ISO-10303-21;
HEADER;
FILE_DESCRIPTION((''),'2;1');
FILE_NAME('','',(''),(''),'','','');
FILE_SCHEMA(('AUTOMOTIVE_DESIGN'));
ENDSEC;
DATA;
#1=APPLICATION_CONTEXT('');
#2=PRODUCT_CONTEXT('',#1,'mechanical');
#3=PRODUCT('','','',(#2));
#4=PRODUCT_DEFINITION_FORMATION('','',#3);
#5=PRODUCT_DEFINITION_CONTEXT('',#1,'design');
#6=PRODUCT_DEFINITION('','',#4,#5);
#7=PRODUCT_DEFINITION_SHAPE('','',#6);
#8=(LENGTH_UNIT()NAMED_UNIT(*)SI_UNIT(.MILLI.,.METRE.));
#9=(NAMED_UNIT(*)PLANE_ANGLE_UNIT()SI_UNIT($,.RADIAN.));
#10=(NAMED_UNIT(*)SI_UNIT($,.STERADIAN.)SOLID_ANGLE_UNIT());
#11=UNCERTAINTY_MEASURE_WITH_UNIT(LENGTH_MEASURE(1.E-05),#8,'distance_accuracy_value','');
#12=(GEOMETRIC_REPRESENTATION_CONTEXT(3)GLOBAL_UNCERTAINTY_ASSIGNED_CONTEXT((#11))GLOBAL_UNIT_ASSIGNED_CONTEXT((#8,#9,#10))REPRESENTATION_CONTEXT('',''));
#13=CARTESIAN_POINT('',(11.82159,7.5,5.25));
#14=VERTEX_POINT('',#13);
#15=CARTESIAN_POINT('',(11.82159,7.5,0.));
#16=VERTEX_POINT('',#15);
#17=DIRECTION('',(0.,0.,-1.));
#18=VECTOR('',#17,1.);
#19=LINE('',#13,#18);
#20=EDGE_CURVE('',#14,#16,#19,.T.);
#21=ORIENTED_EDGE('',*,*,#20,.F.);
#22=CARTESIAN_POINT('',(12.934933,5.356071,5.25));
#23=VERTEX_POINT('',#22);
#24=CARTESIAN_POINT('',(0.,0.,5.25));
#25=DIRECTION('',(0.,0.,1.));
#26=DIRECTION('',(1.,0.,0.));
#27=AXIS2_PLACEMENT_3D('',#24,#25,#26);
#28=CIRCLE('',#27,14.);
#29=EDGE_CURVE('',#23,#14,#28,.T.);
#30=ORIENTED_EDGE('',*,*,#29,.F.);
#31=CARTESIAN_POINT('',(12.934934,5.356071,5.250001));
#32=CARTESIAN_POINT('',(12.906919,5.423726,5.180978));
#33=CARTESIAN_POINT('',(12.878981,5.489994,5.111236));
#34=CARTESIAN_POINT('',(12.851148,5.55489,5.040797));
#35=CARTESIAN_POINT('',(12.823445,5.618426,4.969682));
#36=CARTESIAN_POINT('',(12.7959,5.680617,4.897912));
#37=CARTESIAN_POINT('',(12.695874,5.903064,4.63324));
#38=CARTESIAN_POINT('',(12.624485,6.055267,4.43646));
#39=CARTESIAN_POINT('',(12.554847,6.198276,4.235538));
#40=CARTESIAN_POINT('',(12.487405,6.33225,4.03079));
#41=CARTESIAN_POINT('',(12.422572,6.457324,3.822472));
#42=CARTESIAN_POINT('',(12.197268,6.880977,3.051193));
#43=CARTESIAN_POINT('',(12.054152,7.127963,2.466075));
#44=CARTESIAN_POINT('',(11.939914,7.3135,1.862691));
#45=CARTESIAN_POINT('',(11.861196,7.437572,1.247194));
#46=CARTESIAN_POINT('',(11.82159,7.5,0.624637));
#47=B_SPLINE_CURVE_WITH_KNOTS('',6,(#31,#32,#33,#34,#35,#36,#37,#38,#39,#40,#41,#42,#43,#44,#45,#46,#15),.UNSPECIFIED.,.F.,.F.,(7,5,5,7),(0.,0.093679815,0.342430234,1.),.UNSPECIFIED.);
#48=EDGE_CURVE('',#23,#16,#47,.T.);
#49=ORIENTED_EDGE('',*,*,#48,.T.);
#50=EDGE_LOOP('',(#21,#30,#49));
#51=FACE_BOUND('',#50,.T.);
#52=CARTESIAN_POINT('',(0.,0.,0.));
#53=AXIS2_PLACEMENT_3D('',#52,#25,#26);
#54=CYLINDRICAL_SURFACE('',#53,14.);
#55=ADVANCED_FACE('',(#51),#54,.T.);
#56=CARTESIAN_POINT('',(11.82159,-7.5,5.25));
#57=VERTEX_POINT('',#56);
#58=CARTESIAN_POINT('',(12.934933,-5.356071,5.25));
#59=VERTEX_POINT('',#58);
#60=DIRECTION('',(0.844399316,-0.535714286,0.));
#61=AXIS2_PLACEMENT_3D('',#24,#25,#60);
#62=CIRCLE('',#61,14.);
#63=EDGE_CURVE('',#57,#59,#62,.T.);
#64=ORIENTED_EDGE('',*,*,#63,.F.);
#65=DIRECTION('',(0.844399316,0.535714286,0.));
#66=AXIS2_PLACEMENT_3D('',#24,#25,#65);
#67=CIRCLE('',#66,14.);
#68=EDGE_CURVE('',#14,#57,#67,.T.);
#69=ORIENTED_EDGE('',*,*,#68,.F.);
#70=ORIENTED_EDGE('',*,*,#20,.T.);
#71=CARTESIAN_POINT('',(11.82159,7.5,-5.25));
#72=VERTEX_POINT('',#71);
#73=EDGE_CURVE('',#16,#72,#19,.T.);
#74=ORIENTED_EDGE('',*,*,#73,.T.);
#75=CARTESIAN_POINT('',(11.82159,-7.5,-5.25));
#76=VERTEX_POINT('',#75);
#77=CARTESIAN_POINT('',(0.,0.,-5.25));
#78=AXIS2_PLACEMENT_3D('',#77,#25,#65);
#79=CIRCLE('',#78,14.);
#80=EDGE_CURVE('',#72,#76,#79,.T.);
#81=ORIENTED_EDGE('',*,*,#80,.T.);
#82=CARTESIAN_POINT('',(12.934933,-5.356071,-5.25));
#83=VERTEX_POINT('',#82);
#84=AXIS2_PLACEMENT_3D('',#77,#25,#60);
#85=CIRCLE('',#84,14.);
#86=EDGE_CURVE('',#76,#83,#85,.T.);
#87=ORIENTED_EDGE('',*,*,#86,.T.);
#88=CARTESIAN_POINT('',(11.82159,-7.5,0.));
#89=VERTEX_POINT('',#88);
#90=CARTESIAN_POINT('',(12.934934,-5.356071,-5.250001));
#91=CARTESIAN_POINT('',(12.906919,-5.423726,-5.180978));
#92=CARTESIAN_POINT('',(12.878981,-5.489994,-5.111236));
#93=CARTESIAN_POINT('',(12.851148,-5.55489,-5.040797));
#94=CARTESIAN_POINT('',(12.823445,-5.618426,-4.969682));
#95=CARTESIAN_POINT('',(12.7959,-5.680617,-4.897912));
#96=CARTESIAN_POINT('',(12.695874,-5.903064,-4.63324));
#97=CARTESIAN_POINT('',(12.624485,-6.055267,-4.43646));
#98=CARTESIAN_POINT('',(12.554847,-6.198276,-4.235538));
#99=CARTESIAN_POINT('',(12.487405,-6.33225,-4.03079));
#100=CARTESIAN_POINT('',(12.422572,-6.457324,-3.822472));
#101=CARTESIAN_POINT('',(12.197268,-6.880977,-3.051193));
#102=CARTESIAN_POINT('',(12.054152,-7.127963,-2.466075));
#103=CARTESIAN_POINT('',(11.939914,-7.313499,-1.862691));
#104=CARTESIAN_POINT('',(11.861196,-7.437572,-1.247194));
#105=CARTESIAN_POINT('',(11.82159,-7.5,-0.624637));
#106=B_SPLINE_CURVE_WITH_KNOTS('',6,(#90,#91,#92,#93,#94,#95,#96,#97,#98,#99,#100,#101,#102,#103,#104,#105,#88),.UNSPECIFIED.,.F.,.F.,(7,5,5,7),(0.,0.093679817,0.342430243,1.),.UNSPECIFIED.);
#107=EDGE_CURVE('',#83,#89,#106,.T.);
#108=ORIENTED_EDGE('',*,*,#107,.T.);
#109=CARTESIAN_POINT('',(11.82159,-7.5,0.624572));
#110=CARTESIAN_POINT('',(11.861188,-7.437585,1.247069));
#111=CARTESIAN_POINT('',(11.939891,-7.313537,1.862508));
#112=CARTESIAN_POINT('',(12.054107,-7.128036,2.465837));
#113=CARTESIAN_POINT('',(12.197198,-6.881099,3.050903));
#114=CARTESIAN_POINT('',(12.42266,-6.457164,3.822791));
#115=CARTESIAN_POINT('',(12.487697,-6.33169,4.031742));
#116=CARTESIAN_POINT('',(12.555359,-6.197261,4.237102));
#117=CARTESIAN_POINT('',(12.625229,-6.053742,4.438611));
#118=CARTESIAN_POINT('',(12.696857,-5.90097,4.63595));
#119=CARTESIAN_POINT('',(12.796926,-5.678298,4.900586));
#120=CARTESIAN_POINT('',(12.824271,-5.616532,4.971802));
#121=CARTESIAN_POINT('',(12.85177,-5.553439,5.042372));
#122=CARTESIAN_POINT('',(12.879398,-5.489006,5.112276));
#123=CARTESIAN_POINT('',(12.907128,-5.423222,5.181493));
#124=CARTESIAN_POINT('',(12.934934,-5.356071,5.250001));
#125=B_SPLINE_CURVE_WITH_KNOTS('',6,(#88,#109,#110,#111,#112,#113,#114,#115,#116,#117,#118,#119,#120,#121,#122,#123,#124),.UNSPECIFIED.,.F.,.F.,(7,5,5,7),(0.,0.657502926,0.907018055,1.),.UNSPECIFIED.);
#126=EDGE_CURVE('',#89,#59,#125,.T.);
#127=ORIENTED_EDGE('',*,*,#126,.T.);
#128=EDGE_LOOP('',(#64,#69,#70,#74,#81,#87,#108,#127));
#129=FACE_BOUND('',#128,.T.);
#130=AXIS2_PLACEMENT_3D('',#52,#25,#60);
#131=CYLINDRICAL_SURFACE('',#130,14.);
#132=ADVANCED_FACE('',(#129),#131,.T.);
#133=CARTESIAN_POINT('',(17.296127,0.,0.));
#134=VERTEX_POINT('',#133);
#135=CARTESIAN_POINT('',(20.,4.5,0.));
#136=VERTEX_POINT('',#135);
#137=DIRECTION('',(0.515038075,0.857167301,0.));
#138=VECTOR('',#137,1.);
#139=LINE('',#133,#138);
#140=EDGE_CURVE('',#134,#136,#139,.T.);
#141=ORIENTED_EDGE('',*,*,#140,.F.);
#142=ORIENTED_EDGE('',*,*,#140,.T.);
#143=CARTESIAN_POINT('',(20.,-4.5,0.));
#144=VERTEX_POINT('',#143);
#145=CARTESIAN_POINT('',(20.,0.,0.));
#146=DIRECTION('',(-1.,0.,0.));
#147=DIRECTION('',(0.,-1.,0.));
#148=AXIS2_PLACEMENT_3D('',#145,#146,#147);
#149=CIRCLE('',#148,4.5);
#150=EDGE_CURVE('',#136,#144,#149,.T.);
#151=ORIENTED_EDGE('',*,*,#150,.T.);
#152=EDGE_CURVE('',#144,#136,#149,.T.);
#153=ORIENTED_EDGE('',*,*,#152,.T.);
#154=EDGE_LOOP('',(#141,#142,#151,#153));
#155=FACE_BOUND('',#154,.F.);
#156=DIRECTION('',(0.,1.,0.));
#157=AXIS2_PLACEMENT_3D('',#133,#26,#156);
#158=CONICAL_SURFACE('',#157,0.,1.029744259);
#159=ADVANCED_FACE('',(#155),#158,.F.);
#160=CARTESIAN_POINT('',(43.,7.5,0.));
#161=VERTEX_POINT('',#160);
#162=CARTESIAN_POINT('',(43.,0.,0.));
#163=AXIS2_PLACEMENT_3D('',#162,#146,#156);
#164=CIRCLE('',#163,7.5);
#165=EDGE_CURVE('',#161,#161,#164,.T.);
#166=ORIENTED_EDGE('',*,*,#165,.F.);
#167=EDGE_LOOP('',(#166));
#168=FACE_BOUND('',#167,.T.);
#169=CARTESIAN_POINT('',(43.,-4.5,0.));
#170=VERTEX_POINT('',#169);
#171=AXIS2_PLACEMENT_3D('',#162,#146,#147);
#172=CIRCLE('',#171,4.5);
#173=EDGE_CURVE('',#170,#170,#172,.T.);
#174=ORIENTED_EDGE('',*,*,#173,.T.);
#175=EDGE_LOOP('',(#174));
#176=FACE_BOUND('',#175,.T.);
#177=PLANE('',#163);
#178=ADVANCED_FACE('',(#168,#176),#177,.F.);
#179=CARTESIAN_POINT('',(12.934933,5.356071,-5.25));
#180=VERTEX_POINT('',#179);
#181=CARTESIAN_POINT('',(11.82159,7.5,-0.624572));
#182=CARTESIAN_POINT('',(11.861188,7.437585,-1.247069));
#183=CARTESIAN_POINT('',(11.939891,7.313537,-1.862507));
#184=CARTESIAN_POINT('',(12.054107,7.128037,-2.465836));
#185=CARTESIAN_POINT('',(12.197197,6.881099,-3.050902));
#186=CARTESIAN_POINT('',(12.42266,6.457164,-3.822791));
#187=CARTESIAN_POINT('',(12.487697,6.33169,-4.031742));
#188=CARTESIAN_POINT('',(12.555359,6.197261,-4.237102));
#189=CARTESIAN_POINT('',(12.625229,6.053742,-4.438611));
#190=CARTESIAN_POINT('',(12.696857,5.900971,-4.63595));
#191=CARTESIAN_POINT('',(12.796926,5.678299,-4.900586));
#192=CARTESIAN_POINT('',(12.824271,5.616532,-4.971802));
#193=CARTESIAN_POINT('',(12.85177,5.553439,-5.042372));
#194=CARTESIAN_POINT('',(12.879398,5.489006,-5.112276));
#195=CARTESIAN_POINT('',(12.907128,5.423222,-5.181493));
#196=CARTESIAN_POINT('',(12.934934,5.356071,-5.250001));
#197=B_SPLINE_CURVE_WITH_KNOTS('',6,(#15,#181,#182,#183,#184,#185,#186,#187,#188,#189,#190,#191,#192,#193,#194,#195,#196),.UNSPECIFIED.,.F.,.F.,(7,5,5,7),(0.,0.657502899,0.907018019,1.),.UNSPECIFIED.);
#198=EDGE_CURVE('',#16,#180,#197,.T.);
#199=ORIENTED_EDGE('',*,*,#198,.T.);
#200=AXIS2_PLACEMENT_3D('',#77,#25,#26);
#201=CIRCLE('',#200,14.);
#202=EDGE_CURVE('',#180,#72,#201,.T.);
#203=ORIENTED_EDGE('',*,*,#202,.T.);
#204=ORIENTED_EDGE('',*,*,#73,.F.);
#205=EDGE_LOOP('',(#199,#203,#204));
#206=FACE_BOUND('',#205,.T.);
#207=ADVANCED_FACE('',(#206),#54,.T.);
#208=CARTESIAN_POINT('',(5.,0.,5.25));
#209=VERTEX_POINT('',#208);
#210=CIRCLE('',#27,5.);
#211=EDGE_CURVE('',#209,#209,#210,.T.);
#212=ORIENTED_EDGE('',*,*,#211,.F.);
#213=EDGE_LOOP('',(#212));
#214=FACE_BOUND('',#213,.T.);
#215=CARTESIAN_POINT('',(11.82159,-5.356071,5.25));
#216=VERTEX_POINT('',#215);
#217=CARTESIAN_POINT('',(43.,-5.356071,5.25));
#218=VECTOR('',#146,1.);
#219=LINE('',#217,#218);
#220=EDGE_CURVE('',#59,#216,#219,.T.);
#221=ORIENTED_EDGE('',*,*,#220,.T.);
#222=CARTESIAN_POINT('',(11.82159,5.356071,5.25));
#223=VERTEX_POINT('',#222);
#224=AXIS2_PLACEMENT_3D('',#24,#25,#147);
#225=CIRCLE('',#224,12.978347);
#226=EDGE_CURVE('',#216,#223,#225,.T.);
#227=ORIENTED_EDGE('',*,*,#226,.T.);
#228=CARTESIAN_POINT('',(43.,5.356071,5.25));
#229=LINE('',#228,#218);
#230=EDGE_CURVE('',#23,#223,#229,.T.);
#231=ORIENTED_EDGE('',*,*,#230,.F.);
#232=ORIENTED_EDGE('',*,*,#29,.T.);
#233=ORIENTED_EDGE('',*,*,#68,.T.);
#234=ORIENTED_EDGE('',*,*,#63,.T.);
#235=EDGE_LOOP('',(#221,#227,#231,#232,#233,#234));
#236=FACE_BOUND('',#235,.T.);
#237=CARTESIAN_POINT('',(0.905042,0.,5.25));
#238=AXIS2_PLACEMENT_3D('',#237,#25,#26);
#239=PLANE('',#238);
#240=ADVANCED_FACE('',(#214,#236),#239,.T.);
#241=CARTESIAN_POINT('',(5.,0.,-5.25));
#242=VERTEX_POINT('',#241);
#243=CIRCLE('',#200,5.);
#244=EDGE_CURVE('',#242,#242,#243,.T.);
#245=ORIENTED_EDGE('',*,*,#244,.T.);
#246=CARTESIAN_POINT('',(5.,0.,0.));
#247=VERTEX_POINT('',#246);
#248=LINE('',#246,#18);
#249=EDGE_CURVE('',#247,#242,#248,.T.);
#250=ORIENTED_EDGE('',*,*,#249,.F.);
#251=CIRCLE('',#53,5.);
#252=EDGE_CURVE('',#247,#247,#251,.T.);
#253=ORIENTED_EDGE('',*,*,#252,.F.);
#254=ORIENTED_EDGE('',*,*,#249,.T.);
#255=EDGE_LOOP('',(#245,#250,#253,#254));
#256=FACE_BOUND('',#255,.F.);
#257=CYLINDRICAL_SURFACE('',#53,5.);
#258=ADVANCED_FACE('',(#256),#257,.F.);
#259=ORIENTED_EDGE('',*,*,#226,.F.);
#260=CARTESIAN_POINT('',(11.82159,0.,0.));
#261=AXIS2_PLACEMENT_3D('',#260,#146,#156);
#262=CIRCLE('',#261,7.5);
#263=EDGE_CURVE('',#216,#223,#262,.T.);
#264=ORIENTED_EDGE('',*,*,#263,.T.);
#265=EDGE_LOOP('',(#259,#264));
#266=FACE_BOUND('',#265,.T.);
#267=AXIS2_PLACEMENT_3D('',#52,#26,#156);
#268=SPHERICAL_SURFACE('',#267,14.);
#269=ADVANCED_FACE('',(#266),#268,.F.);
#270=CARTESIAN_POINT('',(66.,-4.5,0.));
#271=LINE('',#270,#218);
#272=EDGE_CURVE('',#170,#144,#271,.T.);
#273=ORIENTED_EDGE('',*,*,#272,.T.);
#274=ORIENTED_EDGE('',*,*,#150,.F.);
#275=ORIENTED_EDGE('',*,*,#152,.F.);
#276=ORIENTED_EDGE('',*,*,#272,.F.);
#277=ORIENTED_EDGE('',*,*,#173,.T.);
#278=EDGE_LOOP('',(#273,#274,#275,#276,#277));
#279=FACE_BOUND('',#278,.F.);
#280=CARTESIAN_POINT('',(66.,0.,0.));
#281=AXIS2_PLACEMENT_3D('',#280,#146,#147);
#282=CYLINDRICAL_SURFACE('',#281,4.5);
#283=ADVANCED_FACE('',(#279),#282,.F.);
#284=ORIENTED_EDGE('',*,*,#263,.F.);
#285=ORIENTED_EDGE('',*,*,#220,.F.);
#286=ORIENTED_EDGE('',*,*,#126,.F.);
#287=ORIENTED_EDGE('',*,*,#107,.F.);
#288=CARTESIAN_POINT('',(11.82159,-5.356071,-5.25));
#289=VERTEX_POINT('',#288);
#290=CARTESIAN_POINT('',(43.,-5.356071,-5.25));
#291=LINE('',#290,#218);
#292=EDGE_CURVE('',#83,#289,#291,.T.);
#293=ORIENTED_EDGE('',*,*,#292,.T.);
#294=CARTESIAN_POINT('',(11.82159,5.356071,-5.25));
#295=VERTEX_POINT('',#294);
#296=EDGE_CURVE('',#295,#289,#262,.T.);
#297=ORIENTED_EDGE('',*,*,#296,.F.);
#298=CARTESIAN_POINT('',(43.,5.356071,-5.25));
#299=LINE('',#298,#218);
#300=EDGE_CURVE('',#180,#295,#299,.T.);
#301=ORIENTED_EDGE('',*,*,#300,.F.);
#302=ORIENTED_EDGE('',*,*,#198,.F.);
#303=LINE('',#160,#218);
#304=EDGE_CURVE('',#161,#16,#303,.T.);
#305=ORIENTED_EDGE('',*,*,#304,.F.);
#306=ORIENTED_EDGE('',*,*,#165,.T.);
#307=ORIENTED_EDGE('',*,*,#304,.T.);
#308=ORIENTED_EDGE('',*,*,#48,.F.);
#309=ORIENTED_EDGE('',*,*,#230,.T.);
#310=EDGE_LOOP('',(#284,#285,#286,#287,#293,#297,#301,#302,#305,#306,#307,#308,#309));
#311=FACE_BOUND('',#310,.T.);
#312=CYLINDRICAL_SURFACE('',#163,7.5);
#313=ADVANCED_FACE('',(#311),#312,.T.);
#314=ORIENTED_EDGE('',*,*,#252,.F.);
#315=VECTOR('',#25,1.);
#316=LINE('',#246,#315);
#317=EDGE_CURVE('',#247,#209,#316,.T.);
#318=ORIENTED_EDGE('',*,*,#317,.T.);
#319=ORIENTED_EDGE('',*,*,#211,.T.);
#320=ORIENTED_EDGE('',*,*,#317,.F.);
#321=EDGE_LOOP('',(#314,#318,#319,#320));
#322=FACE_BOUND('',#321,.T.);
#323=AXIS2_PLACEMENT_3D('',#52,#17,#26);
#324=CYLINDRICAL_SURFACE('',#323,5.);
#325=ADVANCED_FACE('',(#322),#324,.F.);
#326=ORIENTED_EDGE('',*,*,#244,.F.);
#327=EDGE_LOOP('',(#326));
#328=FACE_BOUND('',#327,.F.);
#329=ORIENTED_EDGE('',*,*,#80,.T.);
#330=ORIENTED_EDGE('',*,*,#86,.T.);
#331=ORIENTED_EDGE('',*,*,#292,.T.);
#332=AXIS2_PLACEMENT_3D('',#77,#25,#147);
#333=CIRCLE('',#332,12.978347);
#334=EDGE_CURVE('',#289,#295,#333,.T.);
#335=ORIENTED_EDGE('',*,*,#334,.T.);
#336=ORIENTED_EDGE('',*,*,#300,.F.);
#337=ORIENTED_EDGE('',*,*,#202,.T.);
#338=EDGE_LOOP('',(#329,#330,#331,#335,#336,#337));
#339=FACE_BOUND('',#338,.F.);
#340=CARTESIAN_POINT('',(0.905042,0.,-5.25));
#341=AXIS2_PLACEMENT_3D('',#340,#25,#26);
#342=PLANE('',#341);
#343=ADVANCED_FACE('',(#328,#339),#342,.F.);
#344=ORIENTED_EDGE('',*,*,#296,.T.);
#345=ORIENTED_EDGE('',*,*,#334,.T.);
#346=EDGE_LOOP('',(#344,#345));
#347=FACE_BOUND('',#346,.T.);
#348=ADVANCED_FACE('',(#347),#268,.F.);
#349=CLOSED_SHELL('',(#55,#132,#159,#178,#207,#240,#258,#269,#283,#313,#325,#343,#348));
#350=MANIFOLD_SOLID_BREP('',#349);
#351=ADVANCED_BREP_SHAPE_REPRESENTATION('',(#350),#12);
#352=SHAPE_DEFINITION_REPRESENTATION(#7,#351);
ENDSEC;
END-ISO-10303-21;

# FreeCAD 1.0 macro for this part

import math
import FreeCAD as App
import Part
import Sketcher

V = App.Vector

doc = App.newDocument("Part")
params = doc.addObject("Spreadsheet::Sheet", "Params")
for row, (alias, value) in enumerate([
    ("sketch1_diameter", "10 mm"),
    ("sketch1_radius", "14 mm"),
    ("pad1_length", "10.5 mm"),
    ("sketch2_radius", "14 mm"),
    ("sketch2_width", "29 mm"),
    ("sketch2_height", "7.5 mm"),
    ("revolution_angle", "360 deg"),
    ("sketch3_diameter", "9 mm"),
    ("hole_diameter", "9 mm"),
    ("hole_depth", "23 mm"),
], start=1):
    params.set(f"A{row}", alias)
    params.set(f"B{row}", "=" + value)
    params.setAlias(f"B{row}", alias)

body = doc.addObject("PartDesign::Body", "Body")

sketch1 = body.newObject("Sketcher::SketchObject", "Sketch")
sketch1.AttachmentSupport = (doc.getObject("XY_Plane"), [""])
sketch1.MapMode = "FlatFace"
sketch1.addGeometry([
    Part.ArcOfCircle(Part.Circle(V(0, 0, 0), V(0, 0, 1), 14), math.radians(-32), math.radians(0)),
    Part.ArcOfCircle(Part.Circle(V(0, 0, 0), V(0, 0, 1), 14), math.radians(0), math.radians(32)),
    Part.ArcOfCircle(Part.Circle(V(0, 0, 0), V(0, 0, 1), 14), math.radians(32), math.radians(328)),
    Part.Circle(V(0, 0, 0), V(0, 0, 1), 5),
], False)
sketch1.addConstraint([
    Sketcher.Constraint("Tangent", 0, 2, 1, 1),
    Sketcher.Constraint("Tangent", 1, 2, 2, 1),
    Sketcher.Constraint("Tangent", 2, 2, 0, 1),
    Sketcher.Constraint("Coincident", 0, 3, -1, 1),
    Sketcher.Constraint("Coincident", 3, 3, -1, 1),
    Sketcher.Constraint("PointOnObject", 0, 2, -1),
    Sketcher.Constraint("Vertical", 1, 2, 2, 2),
    Sketcher.Constraint("Diameter", 3, 10.0),
    Sketcher.Constraint("Radius", 0, 14.0),
    Sketcher.Constraint("DistanceY", -1, 1, 1, 2, 7.5),
])
sketch1.setExpression("Constraints[7]", "Params.sketch1_diameter")
sketch1.setExpression("Constraints[8]", "Params.sketch1_radius")
pad1 = body.newObject("PartDesign::Pad", "Pad")
pad1.Profile = sketch1
pad1.setExpression("Length", "Params.pad1_length")
pad1.Midplane = True

sketch2 = body.newObject("Sketcher::SketchObject", "Sketch001")
sketch2.AttachmentSupport = (doc.getObject("XY_Plane"), [""])
sketch2.MapMode = "FlatFace"
sketch2.addGeometry([
    Part.ArcOfCircle(Part.Circle(V(0, 0, 0), V(0, 0, 1), 14), math.radians(0), math.radians(32)),
    Part.LineSegment(V(14, 0, 0), V(43, 0, 0)),
    Part.LineSegment(V(43, 0, 0), V(43, 8, 0)),
    Part.LineSegment(V(43, 8, 0), V(12, 8, 0)),
], False)
sketch2.addConstraint([
    Sketcher.Constraint("Coincident", 0, 1, 1, 1),
    Sketcher.Constraint("Coincident", 1, 2, 2, 1),
    Sketcher.Constraint("Coincident", 2, 2, 3, 1),
    Sketcher.Constraint("Coincident", 3, 2, 0, 2),
    Sketcher.Constraint("Horizontal", 1),
    Sketcher.Constraint("Vertical", 2),
    Sketcher.Constraint("Horizontal", 3),
    Sketcher.Constraint("Coincident", 0, 3, -1, 1),
    Sketcher.Constraint("PointOnObject", 0, 1, -1),
    Sketcher.Constraint("Radius", 0, 14.0),
    Sketcher.Constraint("DistanceX", 1, 1, 1, 2, 29.0),
    Sketcher.Constraint("DistanceY", 2, 1, 2, 2, 7.5),
])
sketch2.setExpression("Constraints[9]", "Params.sketch2_radius")
sketch2.setExpression("Constraints[10]", "Params.sketch2_width")
sketch2.setExpression("Constraints[11]", "Params.sketch2_height")
revolution = body.newObject("PartDesign::Revolution", "Revolution")
revolution.Profile = sketch2
revolution.ReferenceAxis = (sketch2, ["H_Axis"])
revolution.setExpression("Angle", "Params.revolution_angle")

sketch3 = body.newObject("Sketcher::SketchObject", "Sketch002")
sketch3.AttachmentSupport = (doc.getObject("YZ_Plane"), [""])
sketch3.MapMode = "FlatFace"
sketch3.AttachmentOffset = App.Placement(V(0, 0, 43), App.Rotation())
sketch3.addGeometry(Part.Circle(V(0, 0, 0), V(0, 0, 1), 4.5), False)
sketch3.addConstraint([
    Sketcher.Constraint("Coincident", 0, 3, -1, 1),
    Sketcher.Constraint("Diameter", 0, 9.0),
])
sketch3.setExpression("Constraints[1]", "Params.sketch3_diameter")
doc.recompute()
hole = body.newObject("PartDesign::Hole", "Hole")
hole.Profile = sketch3
hole.ThreadType = "None"
hole.setExpression("Diameter", "Params.hole_diameter")
hole.DepthType = "Dimension"
hole.setExpression("Depth", "Params.hole_depth")
hole.DrillPoint = "Angled"
hole.DrillPointAngle = 118

doc.recompute()
